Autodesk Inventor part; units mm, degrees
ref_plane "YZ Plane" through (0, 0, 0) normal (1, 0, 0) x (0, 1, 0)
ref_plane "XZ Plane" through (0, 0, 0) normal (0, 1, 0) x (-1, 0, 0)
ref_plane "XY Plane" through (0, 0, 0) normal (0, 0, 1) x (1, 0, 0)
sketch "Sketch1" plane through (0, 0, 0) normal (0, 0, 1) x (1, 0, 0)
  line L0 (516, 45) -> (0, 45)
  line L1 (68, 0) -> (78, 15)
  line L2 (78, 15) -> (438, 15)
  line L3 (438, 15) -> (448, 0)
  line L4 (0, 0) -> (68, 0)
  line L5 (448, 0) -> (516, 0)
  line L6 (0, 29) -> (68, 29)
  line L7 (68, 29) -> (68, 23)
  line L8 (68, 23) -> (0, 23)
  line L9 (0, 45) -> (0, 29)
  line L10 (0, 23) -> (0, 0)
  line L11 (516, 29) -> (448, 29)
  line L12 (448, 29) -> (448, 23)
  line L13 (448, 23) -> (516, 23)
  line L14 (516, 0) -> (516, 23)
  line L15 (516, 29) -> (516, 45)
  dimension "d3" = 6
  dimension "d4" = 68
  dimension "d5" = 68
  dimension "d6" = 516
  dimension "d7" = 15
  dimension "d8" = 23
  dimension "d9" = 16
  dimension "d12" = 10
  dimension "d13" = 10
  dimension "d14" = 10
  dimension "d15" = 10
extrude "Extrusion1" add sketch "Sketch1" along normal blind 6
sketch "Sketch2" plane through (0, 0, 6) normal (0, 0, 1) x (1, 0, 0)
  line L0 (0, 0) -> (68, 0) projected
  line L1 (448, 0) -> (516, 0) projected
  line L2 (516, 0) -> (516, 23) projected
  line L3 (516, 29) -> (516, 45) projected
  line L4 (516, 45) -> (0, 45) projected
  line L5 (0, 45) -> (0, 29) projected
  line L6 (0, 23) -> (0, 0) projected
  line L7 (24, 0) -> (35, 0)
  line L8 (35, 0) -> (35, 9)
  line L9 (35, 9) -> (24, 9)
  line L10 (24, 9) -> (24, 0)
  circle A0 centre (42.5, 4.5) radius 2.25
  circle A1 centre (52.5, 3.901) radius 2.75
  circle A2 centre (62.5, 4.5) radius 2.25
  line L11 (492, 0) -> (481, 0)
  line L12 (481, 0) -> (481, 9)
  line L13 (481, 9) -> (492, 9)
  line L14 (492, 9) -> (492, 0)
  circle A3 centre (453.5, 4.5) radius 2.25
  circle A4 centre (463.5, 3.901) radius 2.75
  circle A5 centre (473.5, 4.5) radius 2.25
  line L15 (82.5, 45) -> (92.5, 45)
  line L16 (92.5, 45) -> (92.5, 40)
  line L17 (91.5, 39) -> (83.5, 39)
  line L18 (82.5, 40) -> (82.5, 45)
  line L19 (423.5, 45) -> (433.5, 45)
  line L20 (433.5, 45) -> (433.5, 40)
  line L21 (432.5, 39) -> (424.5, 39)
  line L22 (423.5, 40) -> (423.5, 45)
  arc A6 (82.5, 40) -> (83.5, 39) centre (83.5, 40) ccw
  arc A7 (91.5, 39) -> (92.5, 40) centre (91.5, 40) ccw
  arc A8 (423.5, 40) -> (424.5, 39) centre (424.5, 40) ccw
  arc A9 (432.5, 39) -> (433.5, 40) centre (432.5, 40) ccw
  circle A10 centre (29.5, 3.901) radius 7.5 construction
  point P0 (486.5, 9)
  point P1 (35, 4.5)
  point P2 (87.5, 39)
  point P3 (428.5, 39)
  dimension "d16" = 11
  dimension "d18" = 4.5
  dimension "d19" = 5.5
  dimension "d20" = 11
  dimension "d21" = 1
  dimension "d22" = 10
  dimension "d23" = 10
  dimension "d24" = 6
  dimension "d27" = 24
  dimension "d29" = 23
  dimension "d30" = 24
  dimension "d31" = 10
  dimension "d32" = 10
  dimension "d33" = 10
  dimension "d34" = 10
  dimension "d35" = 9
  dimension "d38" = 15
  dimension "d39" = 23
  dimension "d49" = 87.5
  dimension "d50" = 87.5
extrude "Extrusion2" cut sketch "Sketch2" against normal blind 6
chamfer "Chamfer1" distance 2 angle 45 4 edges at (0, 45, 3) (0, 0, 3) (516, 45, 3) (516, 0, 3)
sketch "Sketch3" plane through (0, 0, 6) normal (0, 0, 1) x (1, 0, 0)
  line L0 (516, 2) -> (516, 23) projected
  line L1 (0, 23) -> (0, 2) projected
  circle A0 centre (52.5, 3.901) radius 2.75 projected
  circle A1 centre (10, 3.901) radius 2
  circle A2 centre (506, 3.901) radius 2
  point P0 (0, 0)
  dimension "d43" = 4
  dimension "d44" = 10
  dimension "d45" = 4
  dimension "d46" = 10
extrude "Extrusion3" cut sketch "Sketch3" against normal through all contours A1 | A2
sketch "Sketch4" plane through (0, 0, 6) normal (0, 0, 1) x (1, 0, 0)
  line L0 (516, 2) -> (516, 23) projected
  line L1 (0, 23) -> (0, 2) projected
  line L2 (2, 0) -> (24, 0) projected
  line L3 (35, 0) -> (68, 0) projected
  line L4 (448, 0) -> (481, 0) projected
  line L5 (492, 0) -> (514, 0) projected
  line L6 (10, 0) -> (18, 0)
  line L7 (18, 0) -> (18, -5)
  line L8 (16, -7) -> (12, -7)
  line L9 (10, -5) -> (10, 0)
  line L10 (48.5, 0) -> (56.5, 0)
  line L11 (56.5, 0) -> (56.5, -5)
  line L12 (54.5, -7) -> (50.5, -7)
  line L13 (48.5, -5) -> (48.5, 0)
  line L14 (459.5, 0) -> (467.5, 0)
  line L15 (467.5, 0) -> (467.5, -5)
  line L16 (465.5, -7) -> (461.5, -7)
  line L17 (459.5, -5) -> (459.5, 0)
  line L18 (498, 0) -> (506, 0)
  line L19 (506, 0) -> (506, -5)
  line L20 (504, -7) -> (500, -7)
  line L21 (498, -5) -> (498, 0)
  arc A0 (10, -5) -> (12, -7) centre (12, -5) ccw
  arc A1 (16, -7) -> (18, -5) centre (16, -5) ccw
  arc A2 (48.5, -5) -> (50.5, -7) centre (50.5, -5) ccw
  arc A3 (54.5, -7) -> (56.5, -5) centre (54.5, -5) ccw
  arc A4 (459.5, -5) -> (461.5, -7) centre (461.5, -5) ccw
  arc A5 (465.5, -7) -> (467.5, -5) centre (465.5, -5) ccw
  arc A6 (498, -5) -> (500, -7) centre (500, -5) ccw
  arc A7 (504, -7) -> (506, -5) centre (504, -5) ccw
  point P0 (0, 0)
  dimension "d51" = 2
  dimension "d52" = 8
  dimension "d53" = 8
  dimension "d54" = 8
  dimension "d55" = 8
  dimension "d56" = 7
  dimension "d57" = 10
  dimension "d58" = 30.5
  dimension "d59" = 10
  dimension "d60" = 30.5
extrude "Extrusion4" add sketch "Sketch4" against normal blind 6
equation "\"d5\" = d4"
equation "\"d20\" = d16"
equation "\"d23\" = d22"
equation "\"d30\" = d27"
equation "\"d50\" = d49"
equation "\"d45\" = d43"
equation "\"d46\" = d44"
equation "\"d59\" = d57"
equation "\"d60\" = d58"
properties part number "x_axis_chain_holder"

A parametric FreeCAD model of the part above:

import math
import FreeCAD as App
import Part
import Sketcher
from FreeCAD import Vector


def edges_at(feature, points):
    """Names of the edges that pass closest to the given points."""
    edges = feature.Shape.Edges
    near = lambda p: min(range(len(edges)), key=lambda i: edges[i].distToShape(Part.Vertex(*p))[0])
    return sorted({f"Edge{near(p) + 1}" for p in points})


def add_polygon(sketch, points):
    """Adds a closed chain of lines whose ends are joined by coincident constraints."""
    first, n = sketch.GeometryCount, len(points)
    for a, b in zip(points, points[1:] + points[:1]):
        sketch.addGeometry(Part.LineSegment(App.Vector(*a, 0), App.Vector(*b, 0)), False)
    for i in range(n):
        sketch.addConstraint(Sketcher.Constraint("Coincident", first + i, 2, first + (i + 1) % n, 1))

doc = App.newDocument("Part")
body = doc.addObject("PartDesign::Body", "Body")

# Sketch on XY plane
sketch1 = body.newObject("Sketcher::SketchObject", "Sketch")
sketch1.AttachmentSupport = (doc.getObject("XY_Plane"), [""])
sketch1.MapMode = "FlatFace"
add_polygon(sketch1, [(516, 29), (516, 45), (0, 45), (0, 29), (68, 29), (68, 23), (0, 23), (0, 0), (68, 0), (78, 15), (438, 15), (448, 0), (516, 0), (516, 23), (448, 23), (448, 29)])  # lines 0-15
sketch1.addConstraint([
    Sketcher.Constraint("Vertical", 0),
    Sketcher.Constraint("Horizontal", 1),
    Sketcher.Constraint("Vertical", 2),
    Sketcher.Constraint("Horizontal", 3),
    Sketcher.Constraint("Vertical", 4),
    Sketcher.Constraint("Horizontal", 5),
    Sketcher.Constraint("Vertical", 6),
    Sketcher.Constraint("Horizontal", 7),
    Sketcher.Constraint("Horizontal", 9),
    Sketcher.Constraint("Horizontal", 11),
    Sketcher.Constraint("Vertical", 12),
    Sketcher.Constraint("Horizontal", 13),
    Sketcher.Constraint("Vertical", 14),
    Sketcher.Constraint("Horizontal", 15),
    Sketcher.Constraint("Coincident", 6, 2, -1, 1),
    Sketcher.Constraint("PointOnObject", 1, 2, -2),
    Sketcher.Constraint("PointOnObject", 10, 2, -1),
    Sketcher.Constraint("Horizontal", 5, 2, 12, 2),
    Sketcher.Constraint("Horizontal", 3, 2, 14, 2),
    Sketcher.Constraint("Vertical", 4, 2, 7, 2),
    Sketcher.Constraint("Vertical", 0, 2, 11, 2),
    Sketcher.Constraint("Vertical", 10, 2, 13, 2),
    Sketcher.Constraint("Equal", 7, 11),
    Sketcher.Constraint("Equal", 8, 10),
    Sketcher.Constraint("DistanceX", 1, 2, 1, 1, 516.0),
    Sketcher.Constraint("DistanceX", 3, 1, 3, 2, 68.0),
    Sketcher.Constraint("DistanceY", 0, 1, 0, 2, 16.0),
    Sketcher.Constraint("DistanceY", 4, 2, 4, 1, 6.0),
    Sketcher.Constraint("DistanceY", 6, 2, 6, 1, 23.0),
    Sketcher.Constraint("DistanceY", -1, 1, 8, 2, 15.0),
    Sketcher.Constraint("DistanceX", 4, 2, 8, 2, 10.0),
])
pad1 = body.newObject("PartDesign::Pad", "Pad")
pad1.Profile = sketch1
pad1.Length = 6

# Sketch on XY plane
sketch2 = body.newObject("Sketcher::SketchObject", "Sketch001")
sketch2.AttachmentSupport = (doc.getObject("XY_Plane"), [""])
sketch2.MapMode = "FlatFace"
sketch2.AttachmentOffset = App.Placement(Vector(0, 0, 6), App.Rotation())
add_polygon(sketch2, [(24, 9), (24, 0), (35, 0), (35, 9)])  # lines 0-3
add_polygon(sketch2, [(481, 9), (481, 0), (492, 0), (492, 9)])  # lines 4-7
sketch2.addGeometry(Part.LineSegment(Vector(433.5, 40, 0), Vector(433.5, 45, 0)), False)  # 8
sketch2.addGeometry(Part.LineSegment(Vector(433.5, 45, 0), Vector(423.5, 45, 0)), False)  # 9
sketch2.addGeometry(Part.LineSegment(Vector(423.5, 45, 0), Vector(423.5, 40, 0)), False)  # 10
sketch2.addGeometry(Part.ArcOfCircle(Part.Circle(Vector(424.5, 40, 0), Vector(0, 0, 1), 1), math.radians(180), math.radians(270)), False)  # 11
sketch2.addGeometry(Part.LineSegment(Vector(424.5, 39, 0), Vector(432.5, 39, 0)), False)  # 12
sketch2.addGeometry(Part.ArcOfCircle(Part.Circle(Vector(432.5, 40, 0), Vector(0, 0, 1), 1), math.radians(-90), math.radians(0)), False)  # 13
sketch2.addGeometry(Part.LineSegment(Vector(92.5, 40, 0), Vector(92.5, 45, 0)), False)  # 14
sketch2.addGeometry(Part.LineSegment(Vector(92.5, 45, 0), Vector(82.5, 45, 0)), False)  # 15
sketch2.addGeometry(Part.LineSegment(Vector(82.5, 45, 0), Vector(82.5, 40, 0)), False)  # 16
sketch2.addGeometry(Part.ArcOfCircle(Part.Circle(Vector(83.5, 40, 0), Vector(0, 0, 1), 1), math.radians(180), math.radians(270)), False)  # 17
sketch2.addGeometry(Part.LineSegment(Vector(83.5, 39, 0), Vector(91.5, 39, 0)), False)  # 18
sketch2.addGeometry(Part.ArcOfCircle(Part.Circle(Vector(91.5, 40, 0), Vector(0, 0, 1), 1), math.radians(-90), math.radians(0)), False)  # 19
sketch2.addGeometry(Part.Circle(Vector(42.5, 4.5, 0), Vector(0, 0, 1), 2.2), False)  # 20
sketch2.addGeometry(Part.Circle(Vector(52.5, 3.9, 0), Vector(0, 0, 1), 2.8), False)  # 21
sketch2.addGeometry(Part.Circle(Vector(62.5, 4.5, 0), Vector(0, 0, 1), 2.2), False)  # 22
sketch2.addGeometry(Part.Circle(Vector(453.5, 4.5, 0), Vector(0, 0, 1), 2.2), False)  # 23
sketch2.addGeometry(Part.Circle(Vector(463.5, 3.9, 0), Vector(0, 0, 1), 2.8), False)  # 24
sketch2.addGeometry(Part.Circle(Vector(473.5, 4.5, 0), Vector(0, 0, 1), 2.2), False)  # 25
sketch2.addConstraint([
    Sketcher.Constraint("Coincident", 8, 2, 9, 1),
    Sketcher.Constraint("Coincident", 9, 2, 10, 1),
    Sketcher.Constraint("Tangent", 10, 2, 11, 1),
    Sketcher.Constraint("Tangent", 11, 2, 12, 1),
    Sketcher.Constraint("Tangent", 12, 2, 13, 1),
    Sketcher.Constraint("Tangent", 13, 2, 8, 1),
    Sketcher.Constraint("Coincident", 14, 2, 15, 1),
    Sketcher.Constraint("Coincident", 15, 2, 16, 1),
    Sketcher.Constraint("Tangent", 16, 2, 17, 1),
    Sketcher.Constraint("Tangent", 17, 2, 18, 1),
    Sketcher.Constraint("Tangent", 18, 2, 19, 1),
    Sketcher.Constraint("Tangent", 19, 2, 14, 1),
    Sketcher.Constraint("Vertical", 0),
    Sketcher.Constraint("Horizontal", 1),
    Sketcher.Constraint("Vertical", 2),
    Sketcher.Constraint("Horizontal", 3),
    Sketcher.Constraint("Vertical", 4),
    Sketcher.Constraint("Horizontal", 5),
    Sketcher.Constraint("Vertical", 6),
    Sketcher.Constraint("Horizontal", 7),
    Sketcher.Constraint("Vertical", 8),
    Sketcher.Constraint("Horizontal", 9),
    Sketcher.Constraint("Vertical", 10),
    Sketcher.Constraint("Horizontal", 12),
    Sketcher.Constraint("Vertical", 14),
    Sketcher.Constraint("Horizontal", 15),
    Sketcher.Constraint("Vertical", 16),
    Sketcher.Constraint("Horizontal", 18),
    Sketcher.Constraint("Equal", 11, 13),
    Sketcher.Constraint("Equal", 13, 17),
    Sketcher.Constraint("Equal", 17, 19),
    Sketcher.Constraint("Equal", 20, 22),
    Sketcher.Constraint("Equal", 22, 23),
    Sketcher.Constraint("Equal", 21, 24),
    Sketcher.Constraint("Equal", 23, 25),
    Sketcher.Constraint("PointOnObject", 0, 2, -1),
    Sketcher.Constraint("PointOnObject", 4, 2, -1),
    Sketcher.Constraint("Horizontal", 13, 3, 17, 3),
    Sketcher.Constraint("Horizontal", 20, 3, 22, 3),
    Sketcher.Constraint("Horizontal", 22, 3, 23, 3),
    Sketcher.Constraint("Horizontal", 21, 3, 24, 3),
    Sketcher.Constraint("Horizontal", 23, 3, 25, 3),
    Sketcher.Constraint("Horizontal", 3, 2, 6, 2),
    Sketcher.Constraint("Horizontal", 9, 2, 14, 2),
    Sketcher.Constraint("Equal", 3, 5),
    Sketcher.Constraint("Equal", 9, 15),
    Sketcher.Constraint("Radius", 11, 1.0),
    Sketcher.Constraint("Diameter", 20, 4.5),
    Sketcher.Constraint("Diameter", 21, 5.5),
    Sketcher.Constraint("DistanceX", 1, 1, 1, 2, 11.0),
    Sketcher.Constraint("DistanceX", 9, 2, 9, 1, 10.0),
    Sketcher.Constraint("DistanceY", 0, 2, 0, 1, 9.0),
    Sketcher.Constraint("DistanceX", -1, 1, 0, 2, 24.0),
    Sketcher.Constraint("DistanceX", 20, 3, 21, 3, 10.0),
    Sketcher.Constraint("DistanceX", 21, 3, 22, 3, 10.0),
    Sketcher.Constraint("DistanceX", 23, 3, 24, 3, 10.0),
    Sketcher.Constraint("DistanceX", 24, 3, 25, 3, 10.0),
    Sketcher.Constraint("DistanceY", 11, 2, 9, 2, 6.0),
    Sketcher.Constraint("DistanceY", -1, 1, 20, 3, 4.5),
    Sketcher.Constraint("DistanceY", -1, 1, 11, 3, 40.0),
    Sketcher.Constraint("DistanceX", -1, 1, 4, 2, 481.0),
    Sketcher.Constraint("DistanceX", 17, 3, 11, 3, 341.0),
    Sketcher.Constraint("DistanceX", 20, 3, 17, 3, 41.0),
    Sketcher.Constraint("DistanceX", 13, 3, 23, 3, 21.0),
    Sketcher.Constraint("DistanceX", -1, 1, 11, 3, 424.5),
    Sketcher.Constraint("DistanceY", -1, 1, 21, 3, 3.901),
])
pocket1 = body.newObject("PartDesign::Pocket", "Pocket")
pocket1.Profile = sketch2
pocket1.Length = 6
doc.recompute()

chamfer = body.newObject("PartDesign::Chamfer", "Chamfer")
chamfer.Base = (pocket1, edges_at(pocket1, [
    (0, 45, 3),
    (0, 0, 3),
    (516, 45, 3),
    (516, 0, 3),
]))
chamfer.Size = 2

# Sketch on XY plane
sketch3 = body.newObject("Sketcher::SketchObject", "Sketch002")
sketch3.AttachmentSupport = (doc.getObject("XY_Plane"), [""])
sketch3.MapMode = "FlatFace"
sketch3.AttachmentOffset = App.Placement(Vector(0, 0, 6), App.Rotation())
sketch3.addGeometry([
    Part.Circle(Vector(10, 3.9, 0), Vector(0, 0, 1), 2),
    Part.Circle(Vector(506, 3.9, 0), Vector(0, 0, 1), 2),
], False)
sketch3.addConstraint([
    Sketcher.Constraint("Equal", 0, 1),
    Sketcher.Constraint("Horizontal", 0, 3, 1, 3),
    Sketcher.Constraint("Diameter", 0, 4.0),
    Sketcher.Constraint("DistanceX", -1, 1, 0, 3, 10.0),
    Sketcher.Constraint("DistanceX", -1, 1, 1, 3, 506.0),
    Sketcher.Constraint("DistanceY", -1, 1, 0, 3, 3.901),
])
pocket2 = body.newObject("PartDesign::Pocket", "Pocket001")
pocket2.Profile = sketch3
pocket2.Type = "ThroughAll"

# Sketch on XY plane
sketch4 = body.newObject("Sketcher::SketchObject", "Sketch003")
sketch4.AttachmentSupport = (doc.getObject("XY_Plane"), [""])
sketch4.MapMode = "FlatFace"
sketch4.AttachmentOffset = App.Placement(Vector(0, 0, 6), App.Rotation())
sketch4.addGeometry([
    Part.LineSegment(Vector(18, 0, 0), Vector(10, 0, 0)),  # 0
    Part.LineSegment(Vector(10, 0, 0), Vector(10, -5, 0)),  # 1
    Part.ArcOfCircle(Part.Circle(Vector(12, -5, 0), Vector(0, 0, 1), 2), math.radians(180), math.radians(270)),  # 2
    Part.LineSegment(Vector(12, -7, 0), Vector(16, -7, 0)),  # 3
    Part.ArcOfCircle(Part.Circle(Vector(16, -5, 0), Vector(0, 0, 1), 2), math.radians(-90), math.radians(0)),  # 4
    Part.LineSegment(Vector(18, -5, 0), Vector(18, 0, 0)),  # 5
    Part.LineSegment(Vector(56.5, 0, 0), Vector(48.5, 0, 0)),  # 6
    Part.LineSegment(Vector(48.5, 0, 0), Vector(48.5, -5, 0)),  # 7
    Part.ArcOfCircle(Part.Circle(Vector(50.5, -5, 0), Vector(0, 0, 1), 2), math.radians(180), math.radians(270)),  # 8
    Part.LineSegment(Vector(50.5, -7, 0), Vector(54.5, -7, 0)),  # 9
    Part.ArcOfCircle(Part.Circle(Vector(54.5, -5, 0), Vector(0, 0, 1), 2), math.radians(-90), math.radians(0)),  # 10
    Part.LineSegment(Vector(56.5, -5, 0), Vector(56.5, 0, 0)),  # 11
    Part.LineSegment(Vector(467.5, 0, 0), Vector(459.5, 0, 0)),  # 12
    Part.LineSegment(Vector(459.5, 0, 0), Vector(459.5, -5, 0)),  # 13
    Part.ArcOfCircle(Part.Circle(Vector(461.5, -5, 0), Vector(0, 0, 1), 2), math.radians(180), math.radians(270)),  # 14
    Part.LineSegment(Vector(461.5, -7, 0), Vector(465.5, -7, 0)),  # 15
    Part.ArcOfCircle(Part.Circle(Vector(465.5, -5, 0), Vector(0, 0, 1), 2), math.radians(-90), math.radians(0)),  # 16
    Part.LineSegment(Vector(467.5, -5, 0), Vector(467.5, 0, 0)),  # 17
    Part.LineSegment(Vector(506, 0, 0), Vector(498, 0, 0)),  # 18
    Part.LineSegment(Vector(498, 0, 0), Vector(498, -5, 0)),  # 19
    Part.ArcOfCircle(Part.Circle(Vector(500, -5, 0), Vector(0, 0, 1), 2), math.radians(180), math.radians(270)),  # 20
    Part.LineSegment(Vector(500, -7, 0), Vector(504, -7, 0)),  # 21
    Part.ArcOfCircle(Part.Circle(Vector(504, -5, 0), Vector(0, 0, 1), 2), math.radians(-90), math.radians(0)),  # 22
    Part.LineSegment(Vector(506, -5, 0), Vector(506, 0, 0)),  # 23
], False)
sketch4.addConstraint([
    Sketcher.Constraint("Coincident", 0, 2, 1, 1),
    Sketcher.Constraint("Tangent", 1, 2, 2, 1),
    Sketcher.Constraint("Tangent", 2, 2, 3, 1),
    Sketcher.Constraint("Tangent", 3, 2, 4, 1),
    Sketcher.Constraint("Tangent", 4, 2, 5, 1),
    Sketcher.Constraint("Coincident", 5, 2, 0, 1),
    Sketcher.Constraint("Coincident", 6, 2, 7, 1),
    Sketcher.Constraint("Tangent", 7, 2, 8, 1),
    Sketcher.Constraint("Tangent", 8, 2, 9, 1),
    Sketcher.Constraint("Tangent", 9, 2, 10, 1),
    Sketcher.Constraint("Tangent", 10, 2, 11, 1),
    Sketcher.Constraint("Coincident", 11, 2, 6, 1),
    Sketcher.Constraint("Coincident", 12, 2, 13, 1),
    Sketcher.Constraint("Tangent", 13, 2, 14, 1),
    Sketcher.Constraint("Tangent", 14, 2, 15, 1),
    Sketcher.Constraint("Tangent", 15, 2, 16, 1),
    Sketcher.Constraint("Tangent", 16, 2, 17, 1),
    Sketcher.Constraint("Coincident", 17, 2, 12, 1),
    Sketcher.Constraint("Coincident", 18, 2, 19, 1),
    Sketcher.Constraint("Tangent", 19, 2, 20, 1),
    Sketcher.Constraint("Tangent", 20, 2, 21, 1),
    Sketcher.Constraint("Tangent", 21, 2, 22, 1),
    Sketcher.Constraint("Tangent", 22, 2, 23, 1),
    Sketcher.Constraint("Coincident", 23, 2, 18, 1),
    Sketcher.Constraint("Horizontal", 0),
    Sketcher.Constraint("Vertical", 1),
    Sketcher.Constraint("Horizontal", 3),
    Sketcher.Constraint("Vertical", 5),
    Sketcher.Constraint("Horizontal", 6),
    Sketcher.Constraint("Vertical", 7),
    Sketcher.Constraint("Horizontal", 9),
    Sketcher.Constraint("Vertical", 11),
    Sketcher.Constraint("Horizontal", 12),
    Sketcher.Constraint("Vertical", 13),
    Sketcher.Constraint("Horizontal", 15),
    Sketcher.Constraint("Vertical", 17),
    Sketcher.Constraint("Horizontal", 18),
    Sketcher.Constraint("Vertical", 19),
    Sketcher.Constraint("Horizontal", 21),
    Sketcher.Constraint("Vertical", 23),
    Sketcher.Constraint("Equal", 2, 4),
    Sketcher.Constraint("Equal", 4, 8),
    Sketcher.Constraint("Equal", 8, 10),
    Sketcher.Constraint("Equal", 10, 14),
    Sketcher.Constraint("Equal", 14, 16),
    Sketcher.Constraint("Equal", 16, 20),
    Sketcher.Constraint("Equal", 20, 22),
    Sketcher.Constraint("PointOnObject", 0, 2, -1),
    Sketcher.Constraint("PointOnObject", 6, 2, -1),
    Sketcher.Constraint("PointOnObject", 12, 2, -1),
    Sketcher.Constraint("PointOnObject", 18, 2, -1),
    Sketcher.Constraint("Horizontal", 4, 3, 8, 3),
    Sketcher.Constraint("Horizontal", 10, 3, 14, 3),
    Sketcher.Constraint("Horizontal", 16, 3, 20, 3),
    Sketcher.Constraint("Equal", 0, 6),
    Sketcher.Constraint("Equal", 6, 12),
    Sketcher.Constraint("Equal", 12, 18),
    Sketcher.Constraint("Radius", 2, 2.0),
    Sketcher.Constraint("DistanceX", 0, 2, 0, 1, 8.0),
    Sketcher.Constraint("DistanceX", -1, 1, 0, 2, 10.0),
    Sketcher.Constraint("DistanceY", 2, 2, -1, 1, 7.0),
    Sketcher.Constraint("DistanceX", 5, 2, 6, 2, 30.5),
    Sketcher.Constraint("DistanceX", 17, 2, 18, 2, 30.5),
    Sketcher.Constraint("DistanceX", -1, 1, 20, 3, 500.0),
])
pad2 = body.newObject("PartDesign::Pad", "Pad001")
pad2.Profile = sketch4
pad2.Length = 6
pad2.Reversed = True

doc.recompute()
